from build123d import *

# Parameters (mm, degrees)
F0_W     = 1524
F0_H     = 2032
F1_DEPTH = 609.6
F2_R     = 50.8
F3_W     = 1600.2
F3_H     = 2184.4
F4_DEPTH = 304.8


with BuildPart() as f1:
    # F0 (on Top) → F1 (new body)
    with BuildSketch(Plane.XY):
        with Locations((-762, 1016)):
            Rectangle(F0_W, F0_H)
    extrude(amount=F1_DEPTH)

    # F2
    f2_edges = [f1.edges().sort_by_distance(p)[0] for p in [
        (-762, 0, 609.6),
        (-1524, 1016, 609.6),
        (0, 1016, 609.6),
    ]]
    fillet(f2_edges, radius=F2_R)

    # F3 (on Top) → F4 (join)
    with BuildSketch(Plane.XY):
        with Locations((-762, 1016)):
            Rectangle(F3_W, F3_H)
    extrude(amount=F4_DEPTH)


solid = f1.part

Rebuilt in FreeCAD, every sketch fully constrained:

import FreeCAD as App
import Part
import Sketcher

V = App.Vector
Q = App.Units.Quantity


def edges_at(feature, points):
    """Names of the edges that pass closest to the given points."""
    edges = feature.Shape.Edges
    near = lambda p: min(range(len(edges)), key=lambda i: edges[i].distToShape(Part.Vertex(*p))[0])
    return sorted({f"Edge{near(p) + 1}" for p in points})

doc = App.newDocument("Part")
body = doc.addObject("PartDesign::Body", "Body")

# Sketch on XY plane
sketch1 = doc.addObject("Sketcher::SketchObject", "Sketch")
body.addObject(sketch1)
sketch1.AttachmentSupport = (doc.XY_Plane, [""])
sketch1.MapMode = "FlatFace"
sketch1.addGeometry(Part.LineSegment(V(-1524, 2032, 0), V(-1524, 0, 0)), False)
sketch1.addGeometry(Part.LineSegment(V(-1524, 0, 0), V(0, 0, 0)), False)
sketch1.addGeometry(Part.LineSegment(V(0, 0, 0), V(0, 2032, 0)), False)
sketch1.addGeometry(Part.LineSegment(V(0, 2032, 0), V(-1524, 2032, 0)), False)
sketch1.addConstraint(Sketcher.Constraint("Coincident", 0, 2, 1, 1))
sketch1.addConstraint(Sketcher.Constraint("Coincident", 1, 2, 2, 1))
sketch1.addConstraint(Sketcher.Constraint("Coincident", 2, 2, 3, 1))
sketch1.addConstraint(Sketcher.Constraint("Coincident", 3, 2, 0, 1))
sketch1.addConstraint(Sketcher.Constraint("Vertical", 0))
sketch1.addConstraint(Sketcher.Constraint("Horizontal", 1))
sketch1.addConstraint(Sketcher.Constraint("Vertical", 2))
sketch1.addConstraint(Sketcher.Constraint("Horizontal", 3))
sketch1.addConstraint(Sketcher.Constraint("Coincident", 1, 2, -1, 1))
sketch1.addConstraint(Sketcher.Constraint("DistanceX", 1, 1, 1, 2, Q("60 in")))
sketch1.addConstraint(Sketcher.Constraint("DistanceY", 0, 2, 0, 1, Q("80 in")))
pad1 = doc.addObject("PartDesign::Pad", "Pad")
body.addObject(pad1)
pad1.Profile = sketch1
pad1.Length = Q("24 in")
doc.recompute()

fillet = doc.addObject("PartDesign::Fillet", "Fillet")
body.addObject(fillet)
fillet.Base = (pad1, edges_at(pad1, [(-762, 0, 609.6), (-1524, 1016, 609.6), (0, 1016, 609.6)]))
fillet.Radius = Q("2 in")

# Sketch on XY plane
sketch2 = doc.addObject("Sketcher::SketchObject", "Sketch001")
body.addObject(sketch2)
sketch2.AttachmentSupport = (doc.XY_Plane, [""])
sketch2.MapMode = "FlatFace"
sketch2.addGeometry(Part.LineSegment(V(-1562, 2108, 0), V(-1562, -76, 0)), False)
sketch2.addGeometry(Part.LineSegment(V(-1562, -76, 0), V(38, -76, 0)), False)
sketch2.addGeometry(Part.LineSegment(V(38, -76, 0), V(38, 2108, 0)), False)
sketch2.addGeometry(Part.LineSegment(V(38, 2108, 0), V(-1562, 2108, 0)), False)
sketch2.addConstraint(Sketcher.Constraint("Coincident", 0, 2, 1, 1))
sketch2.addConstraint(Sketcher.Constraint("Coincident", 1, 2, 2, 1))
sketch2.addConstraint(Sketcher.Constraint("Coincident", 2, 2, 3, 1))
sketch2.addConstraint(Sketcher.Constraint("Coincident", 3, 2, 0, 1))
sketch2.addConstraint(Sketcher.Constraint("Vertical", 0))
sketch2.addConstraint(Sketcher.Constraint("Horizontal", 1))
sketch2.addConstraint(Sketcher.Constraint("Vertical", 2))
sketch2.addConstraint(Sketcher.Constraint("Horizontal", 3))
sketch2.addConstraint(Sketcher.Constraint("DistanceX", 1, 1, 1, 2, Q("63 in")))
sketch2.addConstraint(Sketcher.Constraint("DistanceY", 0, 2, 0, 1, Q("86 in")))
sketch2.addConstraint(Sketcher.Constraint("DistanceY", 0, 2, -1, 1, Q("3 in")))
sketch2.addConstraint(Sketcher.Constraint("DistanceX", 0, 2, -1, 1, Q("61.5 in")))
pad2 = doc.addObject("PartDesign::Pad", "Pad001")
body.addObject(pad2)
pad2.Profile = sketch2
pad2.Length = Q("12 in")

doc.recompute()
